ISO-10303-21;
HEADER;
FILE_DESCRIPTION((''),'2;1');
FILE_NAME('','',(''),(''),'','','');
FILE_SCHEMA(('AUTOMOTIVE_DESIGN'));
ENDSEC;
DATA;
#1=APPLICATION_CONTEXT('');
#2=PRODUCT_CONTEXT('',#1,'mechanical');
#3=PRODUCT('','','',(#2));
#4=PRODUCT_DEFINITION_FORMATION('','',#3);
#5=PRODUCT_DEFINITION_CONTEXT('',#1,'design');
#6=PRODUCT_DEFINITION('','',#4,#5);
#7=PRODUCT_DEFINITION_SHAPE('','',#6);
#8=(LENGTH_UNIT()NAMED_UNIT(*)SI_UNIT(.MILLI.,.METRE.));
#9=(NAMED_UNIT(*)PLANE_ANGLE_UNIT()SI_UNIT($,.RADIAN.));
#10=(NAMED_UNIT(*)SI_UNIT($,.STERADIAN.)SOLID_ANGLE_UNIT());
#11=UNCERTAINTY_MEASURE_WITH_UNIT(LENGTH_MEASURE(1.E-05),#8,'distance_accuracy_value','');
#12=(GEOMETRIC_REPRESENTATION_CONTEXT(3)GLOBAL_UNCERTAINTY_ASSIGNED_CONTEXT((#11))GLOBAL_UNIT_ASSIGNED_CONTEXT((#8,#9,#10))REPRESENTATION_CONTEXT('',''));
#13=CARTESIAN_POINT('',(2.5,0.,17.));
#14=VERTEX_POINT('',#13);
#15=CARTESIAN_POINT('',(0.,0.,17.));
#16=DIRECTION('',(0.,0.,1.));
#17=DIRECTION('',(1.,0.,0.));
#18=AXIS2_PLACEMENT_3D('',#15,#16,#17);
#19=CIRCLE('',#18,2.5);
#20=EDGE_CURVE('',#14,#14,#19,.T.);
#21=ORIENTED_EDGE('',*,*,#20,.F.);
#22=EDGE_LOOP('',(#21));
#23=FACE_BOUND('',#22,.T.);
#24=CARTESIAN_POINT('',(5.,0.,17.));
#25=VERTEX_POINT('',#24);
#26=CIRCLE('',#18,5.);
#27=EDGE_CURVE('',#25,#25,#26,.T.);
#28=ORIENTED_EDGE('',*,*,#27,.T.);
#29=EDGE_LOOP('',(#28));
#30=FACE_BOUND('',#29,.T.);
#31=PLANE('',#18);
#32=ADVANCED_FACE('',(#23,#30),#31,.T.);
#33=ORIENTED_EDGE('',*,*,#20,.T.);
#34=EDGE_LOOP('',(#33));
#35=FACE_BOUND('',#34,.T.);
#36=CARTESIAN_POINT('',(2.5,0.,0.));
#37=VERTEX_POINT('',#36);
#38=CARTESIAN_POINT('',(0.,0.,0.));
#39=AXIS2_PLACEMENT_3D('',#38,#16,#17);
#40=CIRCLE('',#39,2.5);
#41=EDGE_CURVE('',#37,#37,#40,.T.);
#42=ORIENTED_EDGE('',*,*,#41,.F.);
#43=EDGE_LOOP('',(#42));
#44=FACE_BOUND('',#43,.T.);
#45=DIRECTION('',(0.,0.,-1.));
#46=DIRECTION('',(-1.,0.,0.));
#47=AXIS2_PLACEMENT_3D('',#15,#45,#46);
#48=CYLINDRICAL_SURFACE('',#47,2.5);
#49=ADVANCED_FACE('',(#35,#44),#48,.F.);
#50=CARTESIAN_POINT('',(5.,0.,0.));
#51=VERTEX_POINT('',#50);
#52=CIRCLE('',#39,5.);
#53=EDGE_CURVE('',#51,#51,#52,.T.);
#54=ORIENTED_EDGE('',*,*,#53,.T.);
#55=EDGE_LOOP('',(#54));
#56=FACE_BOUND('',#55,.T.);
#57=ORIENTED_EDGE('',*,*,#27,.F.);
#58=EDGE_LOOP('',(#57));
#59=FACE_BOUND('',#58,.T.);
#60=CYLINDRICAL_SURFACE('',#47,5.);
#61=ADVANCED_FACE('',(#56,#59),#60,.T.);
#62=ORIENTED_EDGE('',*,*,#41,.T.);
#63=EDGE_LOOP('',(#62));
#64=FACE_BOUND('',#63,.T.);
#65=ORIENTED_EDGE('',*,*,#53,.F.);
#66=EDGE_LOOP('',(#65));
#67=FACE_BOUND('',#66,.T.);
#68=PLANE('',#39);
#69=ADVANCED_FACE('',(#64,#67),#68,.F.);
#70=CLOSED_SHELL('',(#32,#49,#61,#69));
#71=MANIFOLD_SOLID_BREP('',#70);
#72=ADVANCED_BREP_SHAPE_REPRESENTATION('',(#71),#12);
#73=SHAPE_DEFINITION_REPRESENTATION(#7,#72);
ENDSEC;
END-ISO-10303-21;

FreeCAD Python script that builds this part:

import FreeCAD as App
import Part
import Sketcher

V = App.Vector
Q = App.Units.Quantity

doc = App.newDocument("Part")
body = doc.addObject("PartDesign::Body", "Body")

# Sketch on XY plane
sketch1 = body.newObject("Sketcher::SketchObject", "Sketch")
sketch1.AttachmentSupport = (doc.getObject("XY_Plane"), [""])
sketch1.MapMode = "FlatFace"
sketch1.addGeometry(Part.Circle(V(0, 0, 0), V(0, 0, 1), 5), False)
sketch1.addGeometry(Part.Circle(V(0, 0, 0), V(0, 0, 1), 2.5), False)
sketch1.addConstraint(Sketcher.Constraint("Coincident", 0, 3, -1, 1))
sketch1.addConstraint(Sketcher.Constraint("Coincident", 1, 3, -1, 1))
sketch1.addConstraint(Sketcher.Constraint("Diameter", 0, Q("10 mm")))
sketch1.addConstraint(Sketcher.Constraint("Diameter", 1, Q("5 mm")))
pad1 = body.newObject("PartDesign::Pad", "Pad")
pad1.Profile = sketch1
pad1.Length = 17

doc.recompute()
